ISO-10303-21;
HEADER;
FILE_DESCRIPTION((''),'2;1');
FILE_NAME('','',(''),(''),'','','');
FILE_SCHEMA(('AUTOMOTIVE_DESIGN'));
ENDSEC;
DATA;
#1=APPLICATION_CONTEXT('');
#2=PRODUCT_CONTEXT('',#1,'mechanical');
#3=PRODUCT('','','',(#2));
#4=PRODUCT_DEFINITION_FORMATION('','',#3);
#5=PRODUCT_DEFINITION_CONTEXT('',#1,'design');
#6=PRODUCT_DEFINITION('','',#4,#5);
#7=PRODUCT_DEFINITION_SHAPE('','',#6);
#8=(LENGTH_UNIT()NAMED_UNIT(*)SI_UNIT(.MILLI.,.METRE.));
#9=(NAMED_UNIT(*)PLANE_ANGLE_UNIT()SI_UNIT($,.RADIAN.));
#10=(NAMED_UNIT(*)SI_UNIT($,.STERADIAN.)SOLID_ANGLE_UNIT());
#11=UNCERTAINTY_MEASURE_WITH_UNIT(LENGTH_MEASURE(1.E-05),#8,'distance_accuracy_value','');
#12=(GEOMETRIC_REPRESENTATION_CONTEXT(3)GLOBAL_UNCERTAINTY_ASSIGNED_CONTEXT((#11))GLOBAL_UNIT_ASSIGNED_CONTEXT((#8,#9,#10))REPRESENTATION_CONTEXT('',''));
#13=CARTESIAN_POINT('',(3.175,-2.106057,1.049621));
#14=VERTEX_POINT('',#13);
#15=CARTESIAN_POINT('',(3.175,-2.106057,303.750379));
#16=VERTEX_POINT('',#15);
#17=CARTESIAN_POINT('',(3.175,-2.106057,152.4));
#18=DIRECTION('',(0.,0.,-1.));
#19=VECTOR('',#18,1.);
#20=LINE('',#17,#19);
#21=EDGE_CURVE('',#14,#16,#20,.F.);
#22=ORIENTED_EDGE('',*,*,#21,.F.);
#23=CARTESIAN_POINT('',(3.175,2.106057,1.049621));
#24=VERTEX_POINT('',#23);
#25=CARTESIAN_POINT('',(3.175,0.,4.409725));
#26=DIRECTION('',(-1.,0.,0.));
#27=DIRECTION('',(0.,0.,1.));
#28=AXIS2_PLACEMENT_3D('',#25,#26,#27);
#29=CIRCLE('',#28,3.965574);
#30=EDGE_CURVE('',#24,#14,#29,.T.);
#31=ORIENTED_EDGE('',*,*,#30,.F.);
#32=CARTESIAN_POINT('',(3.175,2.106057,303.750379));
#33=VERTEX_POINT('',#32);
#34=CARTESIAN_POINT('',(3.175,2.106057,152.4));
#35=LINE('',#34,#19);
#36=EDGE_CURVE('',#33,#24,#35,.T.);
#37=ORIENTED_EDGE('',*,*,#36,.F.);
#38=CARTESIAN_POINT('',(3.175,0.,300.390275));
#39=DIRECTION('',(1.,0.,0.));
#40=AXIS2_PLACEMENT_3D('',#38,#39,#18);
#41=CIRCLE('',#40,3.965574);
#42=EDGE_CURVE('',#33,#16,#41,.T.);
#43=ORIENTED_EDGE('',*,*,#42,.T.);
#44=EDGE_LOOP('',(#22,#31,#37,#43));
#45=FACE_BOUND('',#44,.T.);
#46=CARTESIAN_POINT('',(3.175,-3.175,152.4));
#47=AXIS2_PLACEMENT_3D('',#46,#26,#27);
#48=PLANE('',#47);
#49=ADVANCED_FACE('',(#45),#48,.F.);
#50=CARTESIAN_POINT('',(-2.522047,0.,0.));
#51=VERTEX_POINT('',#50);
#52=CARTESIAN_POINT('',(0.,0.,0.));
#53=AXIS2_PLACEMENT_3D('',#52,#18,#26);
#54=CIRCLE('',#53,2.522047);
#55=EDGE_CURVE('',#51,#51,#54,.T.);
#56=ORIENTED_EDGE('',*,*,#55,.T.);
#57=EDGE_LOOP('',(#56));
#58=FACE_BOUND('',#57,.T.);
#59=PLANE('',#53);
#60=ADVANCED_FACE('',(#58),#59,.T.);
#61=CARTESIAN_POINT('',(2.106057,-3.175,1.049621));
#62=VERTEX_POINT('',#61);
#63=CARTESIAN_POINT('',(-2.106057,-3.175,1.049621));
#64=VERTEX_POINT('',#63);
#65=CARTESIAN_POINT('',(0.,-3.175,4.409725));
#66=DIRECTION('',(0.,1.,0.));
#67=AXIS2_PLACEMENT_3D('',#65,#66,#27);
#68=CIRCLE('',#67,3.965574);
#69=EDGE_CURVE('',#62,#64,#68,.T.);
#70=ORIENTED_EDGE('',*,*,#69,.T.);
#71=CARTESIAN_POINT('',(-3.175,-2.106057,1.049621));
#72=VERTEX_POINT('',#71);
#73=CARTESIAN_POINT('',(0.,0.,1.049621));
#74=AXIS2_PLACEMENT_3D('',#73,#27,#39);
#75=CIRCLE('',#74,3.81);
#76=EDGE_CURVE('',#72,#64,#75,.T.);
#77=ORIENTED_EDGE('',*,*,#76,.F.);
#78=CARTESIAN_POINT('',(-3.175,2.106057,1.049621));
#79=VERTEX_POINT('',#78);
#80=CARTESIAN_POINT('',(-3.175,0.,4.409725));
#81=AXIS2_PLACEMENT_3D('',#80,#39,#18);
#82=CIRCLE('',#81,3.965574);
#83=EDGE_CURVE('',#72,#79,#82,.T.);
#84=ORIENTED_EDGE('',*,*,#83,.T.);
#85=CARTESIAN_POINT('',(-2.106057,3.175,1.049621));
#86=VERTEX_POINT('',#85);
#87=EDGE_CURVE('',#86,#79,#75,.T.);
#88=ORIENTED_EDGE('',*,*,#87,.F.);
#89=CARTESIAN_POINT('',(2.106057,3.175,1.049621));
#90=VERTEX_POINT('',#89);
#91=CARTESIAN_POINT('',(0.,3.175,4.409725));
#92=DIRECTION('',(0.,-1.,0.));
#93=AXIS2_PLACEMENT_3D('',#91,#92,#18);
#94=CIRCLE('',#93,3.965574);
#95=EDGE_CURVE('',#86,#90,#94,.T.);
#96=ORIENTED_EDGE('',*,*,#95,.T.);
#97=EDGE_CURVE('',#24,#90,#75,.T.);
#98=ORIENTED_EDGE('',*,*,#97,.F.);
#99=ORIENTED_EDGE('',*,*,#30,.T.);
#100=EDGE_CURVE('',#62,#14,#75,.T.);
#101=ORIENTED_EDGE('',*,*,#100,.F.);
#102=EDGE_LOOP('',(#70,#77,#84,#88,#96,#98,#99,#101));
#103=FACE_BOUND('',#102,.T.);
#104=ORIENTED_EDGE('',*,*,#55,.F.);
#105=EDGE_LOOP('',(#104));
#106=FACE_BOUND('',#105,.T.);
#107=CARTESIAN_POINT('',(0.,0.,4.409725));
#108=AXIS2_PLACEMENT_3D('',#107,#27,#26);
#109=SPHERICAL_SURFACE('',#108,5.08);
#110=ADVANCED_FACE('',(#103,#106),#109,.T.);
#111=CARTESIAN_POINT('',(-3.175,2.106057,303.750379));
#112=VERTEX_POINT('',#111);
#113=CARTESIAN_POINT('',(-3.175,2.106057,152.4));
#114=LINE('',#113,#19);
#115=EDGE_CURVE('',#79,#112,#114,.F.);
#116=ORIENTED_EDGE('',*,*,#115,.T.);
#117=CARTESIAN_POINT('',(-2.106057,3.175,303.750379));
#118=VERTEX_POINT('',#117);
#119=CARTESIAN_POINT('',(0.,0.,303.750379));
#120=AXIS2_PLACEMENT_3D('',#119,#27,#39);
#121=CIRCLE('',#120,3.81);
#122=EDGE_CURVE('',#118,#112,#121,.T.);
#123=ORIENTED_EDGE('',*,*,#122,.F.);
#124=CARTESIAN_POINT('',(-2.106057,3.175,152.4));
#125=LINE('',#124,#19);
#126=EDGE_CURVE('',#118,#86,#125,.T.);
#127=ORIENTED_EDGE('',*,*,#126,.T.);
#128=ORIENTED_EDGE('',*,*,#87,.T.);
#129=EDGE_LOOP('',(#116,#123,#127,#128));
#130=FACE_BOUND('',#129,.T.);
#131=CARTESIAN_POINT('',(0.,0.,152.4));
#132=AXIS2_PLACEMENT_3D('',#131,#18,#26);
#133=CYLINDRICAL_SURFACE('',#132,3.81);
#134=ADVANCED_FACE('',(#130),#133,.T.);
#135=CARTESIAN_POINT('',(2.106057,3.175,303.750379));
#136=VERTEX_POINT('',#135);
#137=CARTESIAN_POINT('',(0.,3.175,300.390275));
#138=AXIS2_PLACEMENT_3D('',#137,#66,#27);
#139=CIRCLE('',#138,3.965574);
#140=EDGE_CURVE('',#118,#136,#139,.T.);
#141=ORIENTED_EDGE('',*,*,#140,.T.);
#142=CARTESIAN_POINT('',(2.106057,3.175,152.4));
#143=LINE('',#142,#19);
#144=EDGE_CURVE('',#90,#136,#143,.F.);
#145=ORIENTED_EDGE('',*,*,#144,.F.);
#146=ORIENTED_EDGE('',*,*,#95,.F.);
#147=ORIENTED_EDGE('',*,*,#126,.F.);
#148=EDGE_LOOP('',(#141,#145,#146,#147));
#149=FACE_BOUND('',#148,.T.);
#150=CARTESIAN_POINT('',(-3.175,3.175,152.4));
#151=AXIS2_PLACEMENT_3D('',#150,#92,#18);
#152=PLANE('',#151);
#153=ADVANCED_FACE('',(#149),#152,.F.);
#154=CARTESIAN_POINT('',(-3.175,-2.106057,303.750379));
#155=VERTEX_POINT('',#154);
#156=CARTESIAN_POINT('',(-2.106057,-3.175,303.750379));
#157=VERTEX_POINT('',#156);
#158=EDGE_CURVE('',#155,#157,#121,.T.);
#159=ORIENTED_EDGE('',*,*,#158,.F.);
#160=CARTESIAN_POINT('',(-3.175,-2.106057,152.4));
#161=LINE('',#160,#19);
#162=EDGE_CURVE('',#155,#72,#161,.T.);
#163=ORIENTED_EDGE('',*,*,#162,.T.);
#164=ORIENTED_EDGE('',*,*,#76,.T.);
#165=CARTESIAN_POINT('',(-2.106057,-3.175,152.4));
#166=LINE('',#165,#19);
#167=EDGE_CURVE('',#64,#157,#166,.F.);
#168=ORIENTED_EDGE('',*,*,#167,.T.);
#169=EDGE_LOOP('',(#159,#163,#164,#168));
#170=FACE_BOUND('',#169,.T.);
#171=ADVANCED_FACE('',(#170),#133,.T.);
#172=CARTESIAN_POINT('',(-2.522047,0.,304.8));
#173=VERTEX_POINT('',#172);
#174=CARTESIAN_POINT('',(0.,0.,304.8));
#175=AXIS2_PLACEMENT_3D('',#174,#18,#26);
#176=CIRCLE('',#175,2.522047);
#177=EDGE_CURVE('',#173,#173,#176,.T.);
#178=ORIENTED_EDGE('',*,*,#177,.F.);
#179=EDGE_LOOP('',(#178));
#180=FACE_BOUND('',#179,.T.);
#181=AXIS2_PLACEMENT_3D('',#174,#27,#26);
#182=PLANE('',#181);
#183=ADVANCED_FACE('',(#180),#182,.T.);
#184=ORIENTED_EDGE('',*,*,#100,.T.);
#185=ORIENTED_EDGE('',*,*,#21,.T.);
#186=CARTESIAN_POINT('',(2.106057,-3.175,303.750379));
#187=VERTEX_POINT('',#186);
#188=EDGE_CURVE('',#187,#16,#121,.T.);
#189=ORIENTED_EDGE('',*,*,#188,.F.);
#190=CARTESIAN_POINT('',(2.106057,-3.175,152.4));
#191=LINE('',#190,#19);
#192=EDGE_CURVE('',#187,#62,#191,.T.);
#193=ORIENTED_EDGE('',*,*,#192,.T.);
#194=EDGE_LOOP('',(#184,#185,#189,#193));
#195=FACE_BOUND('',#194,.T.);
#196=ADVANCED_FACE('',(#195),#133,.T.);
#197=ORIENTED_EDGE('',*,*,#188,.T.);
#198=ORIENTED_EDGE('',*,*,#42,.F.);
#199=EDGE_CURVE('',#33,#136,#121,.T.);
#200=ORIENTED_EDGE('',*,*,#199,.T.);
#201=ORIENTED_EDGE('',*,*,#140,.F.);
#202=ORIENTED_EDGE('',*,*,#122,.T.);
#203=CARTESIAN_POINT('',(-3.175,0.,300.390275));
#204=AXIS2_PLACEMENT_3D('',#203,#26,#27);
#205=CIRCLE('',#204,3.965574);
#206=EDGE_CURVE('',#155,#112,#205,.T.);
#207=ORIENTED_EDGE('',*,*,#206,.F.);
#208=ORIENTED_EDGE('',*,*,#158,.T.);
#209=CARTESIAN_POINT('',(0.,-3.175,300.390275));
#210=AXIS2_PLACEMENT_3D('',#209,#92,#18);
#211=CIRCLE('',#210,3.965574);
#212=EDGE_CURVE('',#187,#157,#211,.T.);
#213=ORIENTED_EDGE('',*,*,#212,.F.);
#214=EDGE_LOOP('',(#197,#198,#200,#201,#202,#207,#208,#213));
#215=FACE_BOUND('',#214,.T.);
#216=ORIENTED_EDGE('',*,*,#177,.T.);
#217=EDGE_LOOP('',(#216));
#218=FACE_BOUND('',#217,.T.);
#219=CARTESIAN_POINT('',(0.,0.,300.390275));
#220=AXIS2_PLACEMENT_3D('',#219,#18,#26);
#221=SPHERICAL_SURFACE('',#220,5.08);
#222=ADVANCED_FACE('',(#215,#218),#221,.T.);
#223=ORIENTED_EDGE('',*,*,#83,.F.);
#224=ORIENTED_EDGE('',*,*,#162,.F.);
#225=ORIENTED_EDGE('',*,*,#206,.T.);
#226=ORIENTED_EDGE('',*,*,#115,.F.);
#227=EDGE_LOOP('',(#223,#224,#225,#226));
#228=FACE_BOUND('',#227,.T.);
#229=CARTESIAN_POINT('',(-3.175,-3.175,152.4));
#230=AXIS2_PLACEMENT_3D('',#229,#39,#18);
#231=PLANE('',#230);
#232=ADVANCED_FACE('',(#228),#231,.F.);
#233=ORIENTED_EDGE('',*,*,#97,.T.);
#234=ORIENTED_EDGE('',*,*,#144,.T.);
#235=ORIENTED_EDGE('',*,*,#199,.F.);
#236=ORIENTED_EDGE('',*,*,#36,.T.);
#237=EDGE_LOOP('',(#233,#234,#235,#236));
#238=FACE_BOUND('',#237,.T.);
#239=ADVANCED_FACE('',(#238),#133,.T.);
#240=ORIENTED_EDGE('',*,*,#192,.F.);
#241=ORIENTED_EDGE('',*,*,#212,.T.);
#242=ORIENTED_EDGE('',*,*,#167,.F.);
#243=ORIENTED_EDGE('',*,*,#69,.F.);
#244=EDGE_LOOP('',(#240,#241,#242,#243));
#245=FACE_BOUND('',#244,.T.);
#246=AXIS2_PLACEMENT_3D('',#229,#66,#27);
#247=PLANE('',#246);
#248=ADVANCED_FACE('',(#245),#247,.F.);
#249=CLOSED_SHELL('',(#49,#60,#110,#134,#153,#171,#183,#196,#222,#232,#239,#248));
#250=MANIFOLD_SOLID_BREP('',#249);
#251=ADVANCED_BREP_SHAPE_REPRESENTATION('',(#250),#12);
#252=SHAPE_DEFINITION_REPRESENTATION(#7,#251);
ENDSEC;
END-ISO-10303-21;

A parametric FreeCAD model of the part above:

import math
import FreeCAD as App
import Part
import Sketcher
Q = App.Units.Quantity


def add_polygon(sketch, points):
    """Adds a closed chain of lines whose ends are joined by coincident constraints."""
    first, n = sketch.GeometryCount, len(points)
    for a, b in zip(points, points[1:] + points[:1]):
        sketch.addGeometry(Part.LineSegment(App.Vector(*a, 0), App.Vector(*b, 0)), False)
    for i in range(n):
        sketch.addConstraint(Sketcher.Constraint("Coincident", first + i, 2, first + (i + 1) % n, 1))

doc = App.newDocument("Part")
body = doc.addObject("PartDesign::Body", "Body")

# Sketch on XY plane
sketch1 = body.newObject("Sketcher::SketchObject", "Sketch")
sketch1.AttachmentSupport = (doc.getObject("XY_Plane"), [""])
sketch1.MapMode = "FlatFace"
add_polygon(sketch1, [(-3.175, 3.175), (-3.175, -3.175), (3.175, -3.175), (3.175, 3.175)])  # lines 0-3
sketch1.addConstraint([
    Sketcher.Constraint("Vertical", 0),
    Sketcher.Constraint("Horizontal", 1),
    Sketcher.Constraint("Vertical", 2),
    Sketcher.Constraint("Horizontal", 3),
    Sketcher.Constraint("Symmetric", 0, 2, 2, 2, -1, 1),
    Sketcher.Constraint("Equal", 3, 0),
    Sketcher.Constraint("DistanceX", 1, 1, 1, 2, Q("0.25 in")),
])
pad1 = body.newObject("PartDesign::Pad", "Pad")
pad1.Profile = sketch1
pad1.Length = Q("6 in")

# Sketch on XY plane
sketch2 = body.newObject("Sketcher::SketchObject", "Sketch001")
sketch2.AttachmentSupport = (doc.getObject("XY_Plane"), [""])
sketch2.MapMode = "FlatFace"
add_polygon(sketch2, [(19.441, 19.441), (19.441, -19.441), (-19.441, -19.441), (-19.441, 19.441)])  # lines 0-3
sketch2.addGeometry(Part.Circle(App.Vector(0, 0, 0), App.Vector(0, 0, 1), 3.81), False)  # 4
sketch2.addConstraint([
    Sketcher.Constraint("Vertical", 0),
    Sketcher.Constraint("Horizontal", 1),
    Sketcher.Constraint("Vertical", 2),
    Sketcher.Constraint("Horizontal", 3),
    Sketcher.Constraint("Coincident", 4, 3, -1, 1),
    Sketcher.Constraint("Symmetric", 0, 2, 2, 2, -1, 1),
    Sketcher.Constraint("Equal", 3, 0),
    Sketcher.Constraint("Diameter", 4, Q("0.3 in")),
    Sketcher.Constraint("DistanceX", 1, 2, 1, 1, Q("38.882 mm")),
])
pocket1 = body.newObject("PartDesign::Pocket", "Pocket")
pocket1.Profile = sketch2
pocket1.Type = "ThroughAll"
pocket1.Reversed = True

# Sketch on XZ plane
sketch3 = body.newObject("Sketcher::SketchObject", "Sketch002")
sketch3.AttachmentSupport = (doc.getObject("XZ_Plane"), [""])
sketch3.MapMode = "FlatFace"
sketch3.addGeometry([
    Part.LineSegment(App.Vector(-5.053686, -5.740531, 0), App.Vector(-5.053686, 3.893336, 0)),
    Part.ArcOfCircle(Part.Circle(App.Vector(0, 4.409725, 0), App.Vector(0, 0, 1), 5.08), math.radians(-174.165721), math.radians(-90)),
    Part.LineSegment(App.Vector(0, -0.670275, 0), App.Vector(0, -5.740531, 0)),
    Part.LineSegment(App.Vector(0, -5.740531, 0), App.Vector(-5.053686, -5.740531, 0)),
], False)
sketch3.addConstraint([
    Sketcher.Constraint("Coincident", 0, 2, 1, 1),
    Sketcher.Constraint("Coincident", 1, 2, 2, 1),
    Sketcher.Constraint("Coincident", 2, 2, 3, 1),
    Sketcher.Constraint("Coincident", 3, 2, 0, 1),
    Sketcher.Constraint("Vertical", 0),
    Sketcher.Constraint("Vertical", 2),
    Sketcher.Constraint("Horizontal", 3),
    Sketcher.Constraint("PointOnObject", 1, 3, -2),
    Sketcher.Constraint("PointOnObject", 1, 2, -2),
    Sketcher.Constraint("Radius", 1, Q("0.2 in")),
    Sketcher.Constraint("DistanceX", 3, 2, 3, 1, Q("5.053686 mm")),
    Sketcher.Constraint("DistanceY", 0, 1, 0, 2, Q("9.633866 mm")),
    Sketcher.Constraint("DistanceY", 2, 2, -1, 1, Q("5.740531 mm")),
])
groove = body.newObject("PartDesign::Groove", "Groove")
groove.Profile = sketch3
groove.ReferenceAxis = (sketch3, ["V_Axis"])
groove.Angle = 360
body2 = doc.addObject("PartDesign::Body", "Body001")
doc.recompute()

body2.BaseFeature = body
doc.recompute()

mirroring = doc.addObject("Part::Mirroring", "Mirroring")
mirroring.Source = body
mirroring.Base = App.Vector(0, 0, 152.4)
mirroring.Normal = App.Vector(0, 0, -1)
body3 = doc.addObject("PartDesign::Body", "Body002")
body3.BaseFeature = mirroring
boolean = body2.newObject("PartDesign::Boolean", "Boolean")
boolean.Type = "Fuse"
boolean.addObjects([body3])
doc.recompute()
mirroring.Visibility = False

doc.recompute()
